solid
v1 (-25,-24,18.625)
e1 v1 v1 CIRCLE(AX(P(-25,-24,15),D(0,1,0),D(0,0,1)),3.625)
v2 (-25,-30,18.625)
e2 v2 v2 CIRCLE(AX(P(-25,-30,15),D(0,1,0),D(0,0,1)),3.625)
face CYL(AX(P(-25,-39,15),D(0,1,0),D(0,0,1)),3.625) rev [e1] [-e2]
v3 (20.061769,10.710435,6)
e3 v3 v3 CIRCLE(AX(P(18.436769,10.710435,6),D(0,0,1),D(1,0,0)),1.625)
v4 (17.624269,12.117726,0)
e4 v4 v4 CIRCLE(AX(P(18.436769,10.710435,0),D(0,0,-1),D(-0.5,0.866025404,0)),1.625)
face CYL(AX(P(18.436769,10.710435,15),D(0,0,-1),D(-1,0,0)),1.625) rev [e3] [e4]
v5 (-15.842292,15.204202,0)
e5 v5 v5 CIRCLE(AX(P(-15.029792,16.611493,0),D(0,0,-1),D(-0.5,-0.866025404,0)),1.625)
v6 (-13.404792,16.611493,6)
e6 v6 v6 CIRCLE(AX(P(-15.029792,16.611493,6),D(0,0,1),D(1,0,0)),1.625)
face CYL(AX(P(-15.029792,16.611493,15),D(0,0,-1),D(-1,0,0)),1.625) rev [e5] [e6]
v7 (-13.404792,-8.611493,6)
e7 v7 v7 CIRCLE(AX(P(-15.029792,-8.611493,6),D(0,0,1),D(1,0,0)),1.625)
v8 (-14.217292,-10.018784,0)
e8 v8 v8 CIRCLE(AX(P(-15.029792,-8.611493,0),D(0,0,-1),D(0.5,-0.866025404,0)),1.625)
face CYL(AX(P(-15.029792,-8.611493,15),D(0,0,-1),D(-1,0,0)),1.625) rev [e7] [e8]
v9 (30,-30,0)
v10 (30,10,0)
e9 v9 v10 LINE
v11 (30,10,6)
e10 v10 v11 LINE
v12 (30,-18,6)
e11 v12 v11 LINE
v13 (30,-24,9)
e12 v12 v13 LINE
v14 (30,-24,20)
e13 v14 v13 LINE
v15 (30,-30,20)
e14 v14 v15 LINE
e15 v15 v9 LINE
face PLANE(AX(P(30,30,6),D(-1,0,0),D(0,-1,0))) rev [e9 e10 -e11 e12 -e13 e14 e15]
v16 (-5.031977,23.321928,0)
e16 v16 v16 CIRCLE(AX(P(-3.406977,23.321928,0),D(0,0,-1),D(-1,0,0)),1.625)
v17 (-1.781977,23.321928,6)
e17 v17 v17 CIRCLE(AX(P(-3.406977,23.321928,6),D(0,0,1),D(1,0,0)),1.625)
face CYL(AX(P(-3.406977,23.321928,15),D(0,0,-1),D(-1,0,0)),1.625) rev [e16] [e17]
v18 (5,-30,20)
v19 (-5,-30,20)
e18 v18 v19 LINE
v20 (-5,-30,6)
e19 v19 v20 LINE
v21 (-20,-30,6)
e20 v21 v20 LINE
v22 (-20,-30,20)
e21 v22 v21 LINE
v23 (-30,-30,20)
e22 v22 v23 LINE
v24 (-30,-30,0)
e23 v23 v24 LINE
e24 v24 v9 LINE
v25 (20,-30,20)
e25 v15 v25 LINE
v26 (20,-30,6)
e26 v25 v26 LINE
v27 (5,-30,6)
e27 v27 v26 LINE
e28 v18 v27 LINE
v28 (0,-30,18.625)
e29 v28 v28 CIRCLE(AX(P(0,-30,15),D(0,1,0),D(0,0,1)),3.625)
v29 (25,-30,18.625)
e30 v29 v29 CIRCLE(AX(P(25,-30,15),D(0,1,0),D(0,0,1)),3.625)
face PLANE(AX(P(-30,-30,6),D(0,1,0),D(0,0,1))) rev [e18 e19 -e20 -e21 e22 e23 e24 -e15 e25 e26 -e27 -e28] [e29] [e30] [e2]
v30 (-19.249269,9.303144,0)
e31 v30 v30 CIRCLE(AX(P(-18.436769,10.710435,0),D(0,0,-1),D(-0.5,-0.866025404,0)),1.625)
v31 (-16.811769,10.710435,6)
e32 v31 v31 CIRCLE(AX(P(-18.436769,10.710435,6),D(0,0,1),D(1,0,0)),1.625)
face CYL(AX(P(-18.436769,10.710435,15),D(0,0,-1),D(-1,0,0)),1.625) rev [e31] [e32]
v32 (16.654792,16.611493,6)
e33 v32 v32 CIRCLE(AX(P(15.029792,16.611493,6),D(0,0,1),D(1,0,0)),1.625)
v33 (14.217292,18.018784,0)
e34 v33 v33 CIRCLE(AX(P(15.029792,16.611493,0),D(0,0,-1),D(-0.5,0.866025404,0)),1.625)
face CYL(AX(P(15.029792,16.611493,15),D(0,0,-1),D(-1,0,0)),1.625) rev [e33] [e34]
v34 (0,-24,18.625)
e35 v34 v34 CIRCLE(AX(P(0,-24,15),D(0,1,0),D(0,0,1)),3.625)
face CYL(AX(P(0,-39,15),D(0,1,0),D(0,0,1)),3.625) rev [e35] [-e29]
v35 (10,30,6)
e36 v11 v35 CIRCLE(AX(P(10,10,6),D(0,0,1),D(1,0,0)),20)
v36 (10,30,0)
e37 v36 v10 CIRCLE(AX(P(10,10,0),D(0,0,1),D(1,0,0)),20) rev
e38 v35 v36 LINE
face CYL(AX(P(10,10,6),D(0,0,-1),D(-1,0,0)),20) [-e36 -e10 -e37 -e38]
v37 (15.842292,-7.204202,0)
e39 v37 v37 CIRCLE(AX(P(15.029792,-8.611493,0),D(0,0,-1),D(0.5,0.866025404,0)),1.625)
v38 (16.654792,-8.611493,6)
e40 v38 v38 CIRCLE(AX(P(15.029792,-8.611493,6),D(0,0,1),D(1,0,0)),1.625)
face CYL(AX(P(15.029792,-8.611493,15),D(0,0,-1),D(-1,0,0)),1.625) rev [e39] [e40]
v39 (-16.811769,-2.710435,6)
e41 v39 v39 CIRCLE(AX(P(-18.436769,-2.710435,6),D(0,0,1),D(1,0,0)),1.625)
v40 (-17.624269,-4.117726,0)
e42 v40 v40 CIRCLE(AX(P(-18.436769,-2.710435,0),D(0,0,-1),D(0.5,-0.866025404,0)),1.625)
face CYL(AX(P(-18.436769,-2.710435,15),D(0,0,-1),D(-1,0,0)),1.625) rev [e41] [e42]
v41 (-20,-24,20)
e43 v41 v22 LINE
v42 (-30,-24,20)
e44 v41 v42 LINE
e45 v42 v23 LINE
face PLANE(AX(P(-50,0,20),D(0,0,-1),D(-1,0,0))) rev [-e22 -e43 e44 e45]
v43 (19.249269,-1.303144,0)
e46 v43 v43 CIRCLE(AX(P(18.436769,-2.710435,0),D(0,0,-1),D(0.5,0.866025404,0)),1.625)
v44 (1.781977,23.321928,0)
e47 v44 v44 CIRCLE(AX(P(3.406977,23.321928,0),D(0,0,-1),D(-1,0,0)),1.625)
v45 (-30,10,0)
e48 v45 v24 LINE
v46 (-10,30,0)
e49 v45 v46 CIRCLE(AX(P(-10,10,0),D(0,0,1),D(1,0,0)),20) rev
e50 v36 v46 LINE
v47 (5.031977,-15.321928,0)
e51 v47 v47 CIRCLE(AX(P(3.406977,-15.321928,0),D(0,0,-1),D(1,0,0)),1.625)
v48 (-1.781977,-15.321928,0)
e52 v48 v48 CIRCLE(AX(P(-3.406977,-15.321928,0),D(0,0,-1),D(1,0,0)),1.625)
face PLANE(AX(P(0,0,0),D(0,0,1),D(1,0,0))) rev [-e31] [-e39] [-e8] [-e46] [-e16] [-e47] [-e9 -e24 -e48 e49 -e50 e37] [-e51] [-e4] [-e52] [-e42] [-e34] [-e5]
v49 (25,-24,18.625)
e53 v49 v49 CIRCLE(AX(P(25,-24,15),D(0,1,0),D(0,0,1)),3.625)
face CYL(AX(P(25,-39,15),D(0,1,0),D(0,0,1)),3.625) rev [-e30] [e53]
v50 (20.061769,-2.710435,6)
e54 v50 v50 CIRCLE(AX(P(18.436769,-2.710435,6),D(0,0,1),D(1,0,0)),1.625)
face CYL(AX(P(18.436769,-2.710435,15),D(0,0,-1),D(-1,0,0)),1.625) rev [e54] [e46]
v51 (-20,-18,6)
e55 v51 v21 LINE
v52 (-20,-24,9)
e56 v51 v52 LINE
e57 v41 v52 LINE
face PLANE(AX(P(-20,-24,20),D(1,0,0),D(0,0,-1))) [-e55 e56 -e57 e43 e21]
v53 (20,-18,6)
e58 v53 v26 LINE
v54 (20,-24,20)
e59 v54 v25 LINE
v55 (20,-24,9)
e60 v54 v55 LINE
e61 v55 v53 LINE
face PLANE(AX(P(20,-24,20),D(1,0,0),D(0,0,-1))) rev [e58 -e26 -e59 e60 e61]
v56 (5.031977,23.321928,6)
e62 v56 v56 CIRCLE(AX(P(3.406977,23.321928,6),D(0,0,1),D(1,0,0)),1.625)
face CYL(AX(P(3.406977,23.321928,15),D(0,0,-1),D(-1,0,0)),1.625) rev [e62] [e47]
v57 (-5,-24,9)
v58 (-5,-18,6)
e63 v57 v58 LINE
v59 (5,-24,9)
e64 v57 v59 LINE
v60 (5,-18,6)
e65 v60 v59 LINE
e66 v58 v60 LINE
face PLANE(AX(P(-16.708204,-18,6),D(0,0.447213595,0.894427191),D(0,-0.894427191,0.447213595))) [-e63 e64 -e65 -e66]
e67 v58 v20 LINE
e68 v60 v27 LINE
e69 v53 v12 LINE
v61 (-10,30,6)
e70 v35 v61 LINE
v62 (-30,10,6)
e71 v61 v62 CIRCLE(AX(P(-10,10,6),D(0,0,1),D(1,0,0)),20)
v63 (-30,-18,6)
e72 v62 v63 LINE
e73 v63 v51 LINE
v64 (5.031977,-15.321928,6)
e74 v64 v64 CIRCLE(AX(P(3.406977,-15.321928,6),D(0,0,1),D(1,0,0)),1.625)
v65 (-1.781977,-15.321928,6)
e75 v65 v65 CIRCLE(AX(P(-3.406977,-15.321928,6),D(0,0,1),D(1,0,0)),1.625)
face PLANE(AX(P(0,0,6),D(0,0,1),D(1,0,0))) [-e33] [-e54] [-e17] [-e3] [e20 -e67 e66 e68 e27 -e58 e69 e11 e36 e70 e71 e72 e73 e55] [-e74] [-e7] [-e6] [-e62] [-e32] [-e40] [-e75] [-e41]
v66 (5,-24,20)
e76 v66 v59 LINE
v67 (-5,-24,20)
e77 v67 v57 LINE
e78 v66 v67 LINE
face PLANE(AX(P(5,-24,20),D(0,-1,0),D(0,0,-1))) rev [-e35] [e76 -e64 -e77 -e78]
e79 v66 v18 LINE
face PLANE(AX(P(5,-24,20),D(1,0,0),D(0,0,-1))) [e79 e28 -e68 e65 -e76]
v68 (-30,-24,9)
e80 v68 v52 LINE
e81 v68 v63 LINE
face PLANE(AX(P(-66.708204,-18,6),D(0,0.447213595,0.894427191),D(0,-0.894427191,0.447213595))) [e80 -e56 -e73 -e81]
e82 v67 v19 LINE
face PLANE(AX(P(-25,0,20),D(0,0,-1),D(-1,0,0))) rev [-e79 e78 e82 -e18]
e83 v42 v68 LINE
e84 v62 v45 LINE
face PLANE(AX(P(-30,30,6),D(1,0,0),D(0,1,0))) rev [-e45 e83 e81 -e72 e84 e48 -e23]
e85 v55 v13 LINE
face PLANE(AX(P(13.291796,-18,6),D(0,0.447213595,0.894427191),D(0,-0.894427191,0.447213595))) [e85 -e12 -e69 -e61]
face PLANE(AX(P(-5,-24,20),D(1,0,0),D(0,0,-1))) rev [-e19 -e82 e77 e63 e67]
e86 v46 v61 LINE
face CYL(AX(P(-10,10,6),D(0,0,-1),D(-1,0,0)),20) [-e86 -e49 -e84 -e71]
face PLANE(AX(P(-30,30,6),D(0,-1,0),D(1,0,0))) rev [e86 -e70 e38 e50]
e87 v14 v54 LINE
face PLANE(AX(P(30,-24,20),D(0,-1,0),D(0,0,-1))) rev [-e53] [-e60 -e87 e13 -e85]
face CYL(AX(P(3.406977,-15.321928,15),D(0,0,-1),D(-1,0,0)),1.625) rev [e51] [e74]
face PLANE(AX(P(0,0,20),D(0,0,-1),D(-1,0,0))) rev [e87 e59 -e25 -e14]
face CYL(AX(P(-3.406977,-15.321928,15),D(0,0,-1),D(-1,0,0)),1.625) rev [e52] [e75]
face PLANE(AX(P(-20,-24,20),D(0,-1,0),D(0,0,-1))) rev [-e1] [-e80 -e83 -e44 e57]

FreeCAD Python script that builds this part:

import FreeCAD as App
import Part
import Sketcher
from FreeCAD import Vector
Q = App.Units.Quantity


def edges_at(feature, points):
    """Names of the edges that pass closest to the given points."""
    edges = feature.Shape.Edges
    near = lambda p: min(range(len(edges)), key=lambda i: edges[i].distToShape(Part.Vertex(*p))[0])
    return sorted({f"Edge{near(p) + 1}" for p in points})


def add_polygon(sketch, points):
    """Adds a closed chain of lines whose ends are joined by coincident constraints."""
    first, n = sketch.GeometryCount, len(points)
    for a, b in zip(points, points[1:] + points[:1]):
        sketch.addGeometry(Part.LineSegment(App.Vector(*a, 0), App.Vector(*b, 0)), False)
    for i in range(n):
        sketch.addConstraint(Sketcher.Constraint("Coincident", first + i, 2, first + (i + 1) % n, 1))

doc = App.newDocument("Part")
body = doc.addObject("PartDesign::Body", "Body")

# Sketch on XY plane
sketch1 = body.newObject("Sketcher::SketchObject", "Sketch")
sketch1.AttachmentSupport = (doc.getObject("XY_Plane"), [""])
sketch1.MapMode = "FlatFace"
add_polygon(sketch1, [(-30, 30), (-30, -30), (30, -30), (30, 30)])  # lines 0-3
sketch1.addConstraint([
    Sketcher.Constraint("Vertical", 0),
    Sketcher.Constraint("Horizontal", 1),
    Sketcher.Constraint("Vertical", 2),
    Sketcher.Constraint("Horizontal", 3),
    Sketcher.Constraint("Symmetric", 0, 2, 2, 2, -1, 1),
    Sketcher.Constraint("Equal", 3, 0),
    Sketcher.Constraint("DistanceX", 1, 1, 1, 2, Q("60 mm")),
])
pad1 = body.newObject("PartDesign::Pad", "Pad")
pad1.Profile = sketch1
pad1.Length = 6

# Sketch on XY plane
sketch2 = body.newObject("Sketcher::SketchObject", "Sketch001")
sketch2.AttachmentSupport = (doc.getObject("XY_Plane"), [""])
sketch2.MapMode = "FlatFace"
sketch2.AttachmentOffset = App.Placement(Vector(0, 0, 6), App.Rotation())
add_polygon(sketch2, [(20, -24), (20, -30), (30, -30), (30, -24)])  # lines 0-3
sketch2.addConstraint([
    Sketcher.Constraint("Vertical", 0),
    Sketcher.Constraint("Horizontal", 1),
    Sketcher.Constraint("Vertical", 2),
    Sketcher.Constraint("Horizontal", 3),
    Sketcher.Constraint("DistanceX", 1, 1, 1, 2, Q("10 mm")),
    Sketcher.Constraint("DistanceY", 0, 2, 0, 1, Q("6 mm")),
    Sketcher.Constraint("DistanceX", -1, 1, 0, 2, Q("20 mm")),
    Sketcher.Constraint("DistanceY", 0, 2, -1, 1, Q("30 mm")),
])
pad2 = body.newObject("PartDesign::Pad", "Pad001")
pad2.Profile = sketch2
pad2.Length = 14

# Sketch on YZ plane
sketch3 = body.newObject("Sketcher::SketchObject", "Sketch002")
sketch3.AttachmentSupport = (doc.getObject("YZ_Plane"), [""])
sketch3.MapMode = "FlatFace"
sketch3.AttachmentOffset = App.Placement(Vector(0, 0, 30), App.Rotation())
add_polygon(sketch3, [(-18, 6), (-24, 9), (-24, 6)])  # lines 0-2
sketch3.addConstraint([
    Sketcher.Constraint("Vertical", 1),
    Sketcher.Constraint("Horizontal", 2),
    Sketcher.Constraint("DistanceX", 2, 1, 2, 2, Q("6 mm")),
    Sketcher.Constraint("DistanceY", 1, 2, 1, 1, Q("3 mm")),
    Sketcher.Constraint("DistanceX", 0, 2, -1, 1, Q("24 mm")),
    Sketcher.Constraint("DistanceY", -1, 1, 0, 2, Q("9 mm")),
])
pad3 = body.newObject("PartDesign::Pad", "Pad002")
pad3.Profile = sketch3
pad3.Length = 10
pad3.Reversed = True

# Sketch on XZ plane
sketch4 = body.newObject("Sketcher::SketchObject", "Sketch003")
sketch4.AttachmentSupport = (doc.getObject("XZ_Plane"), [""])
sketch4.MapMode = "FlatFace"
sketch4.AttachmentOffset = App.Placement(Vector(0, 0, 24), App.Rotation())
sketch4.addGeometry(Part.Circle(Vector(25, 15, 0), Vector(0, 0, 1), 3.625), False)
sketch4.addConstraint([
    Sketcher.Constraint("Diameter", 0, Q("7.25 mm")),
    Sketcher.Constraint("DistanceX", -1, 1, 0, 3, Q("25 mm")),
    Sketcher.Constraint("DistanceY", -1, 1, 0, 3, Q("15 mm")),
])
pocket1 = body.newObject("PartDesign::Pocket", "Pocket")
pocket1.Profile = sketch4
pocket1.Length = 15
pocket1.Reversed = True
doc.recompute()

linearpattern = body.newObject("PartDesign::LinearPattern", "LinearPattern")
linearpattern.Originals = [pad2, pad3, pocket1]
linearpattern.Direction = (doc.getObject("X_Axis"), [""])
linearpattern.Mode = "offset"
linearpattern.Offset = 25
linearpattern.Occurrences = 3
linearpattern.Reversed = True
body.Tip = linearpattern

# Sketch on XY plane
sketch5 = body.newObject("Sketcher::SketchObject", "Sketch004")
sketch5.AttachmentSupport = (doc.getObject("XY_Plane"), [""])
sketch5.MapMode = "FlatFace"
sketch5.addGeometry([
    Part.Circle(Vector(-3.406977, 23.321928, 0), Vector(0, 0, 1), 1.625),
    Part.Circle(Vector(3.406977, 23.321928, 0), Vector(0, 0, 1), 1.625),
], False)
sketch5.addConstraint([
    Sketcher.Constraint("Equal", 0, 1),
    Sketcher.Constraint("Symmetric", 0, 3, 1, 3, -2),
    Sketcher.Constraint("Diameter", 0, Q("3.25 mm")),
    Sketcher.Constraint("DistanceY", -1, 1, 0, 3, Q("23.321928 mm")),
    Sketcher.Constraint("DistanceX", 0, 3, -1, 1, Q("3.406977 mm")),
])
pocket2 = body.newObject("PartDesign::Pocket", "Pocket001")
pocket2.Profile = sketch5
pocket2.Length = 15
pocket2.Reversed = True
doc.recompute()

datumline = body.newObject("PartDesign::Line", "DatumLine")
datumline.Placement = App.Placement(Vector(0, 4, 0), App.Rotation(Vector(0, 0, 1), Vector(0, 0, 1)))
polarpattern = body.newObject("PartDesign::PolarPattern", "PolarPattern")
polarpattern.Originals = [pocket2]
polarpattern.Axis = (datumline, [""])
polarpattern.Angle = 360
polarpattern.Occurrences = 6
body.Tip = polarpattern
doc.recompute()

fillet = body.newObject("PartDesign::Fillet", "Fillet")
fillet.Base = (polarpattern, edges_at(polarpattern, [(-30, 30, 3), (30, 30, 3)]))
fillet.Radius = 20

doc.recompute()
